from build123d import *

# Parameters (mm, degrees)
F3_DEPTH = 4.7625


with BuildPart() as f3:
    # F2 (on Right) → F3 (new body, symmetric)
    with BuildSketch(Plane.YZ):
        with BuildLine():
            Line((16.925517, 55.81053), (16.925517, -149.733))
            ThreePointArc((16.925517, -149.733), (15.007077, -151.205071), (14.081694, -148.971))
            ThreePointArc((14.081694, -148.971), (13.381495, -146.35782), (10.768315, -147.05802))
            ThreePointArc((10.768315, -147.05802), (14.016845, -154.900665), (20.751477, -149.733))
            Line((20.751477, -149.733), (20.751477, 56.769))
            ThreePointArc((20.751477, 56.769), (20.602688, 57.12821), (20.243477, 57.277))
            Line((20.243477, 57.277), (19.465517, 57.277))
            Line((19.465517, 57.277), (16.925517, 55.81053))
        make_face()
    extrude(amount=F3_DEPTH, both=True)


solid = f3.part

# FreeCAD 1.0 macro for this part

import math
import FreeCAD as App
import Part
import Sketcher
from FreeCAD import Vector
Q = App.Units.Quantity

doc = App.newDocument("Part")
body = doc.addObject("PartDesign::Body", "Body")

# Sketch on YZ plane
sketch1 = doc.addObject("Sketcher::SketchObject", "Sketch")
body.addObject(sketch1)
sketch1.AttachmentSupport = (doc.YZ_Plane, [""])
sketch1.MapMode = "FlatFace"
sketch1.addGeometry([
    Part.LineSegment(Vector(16.925517, 55.81053, 0), Vector(16.925517, -149.733, 0)),  # 0
    Part.ArcOfCircle(Part.Circle(Vector(15.401517, -149.733, 0), Vector(0, 0, 1), 1.524), math.radians(150.000008), math.radians(359.999995)),  # 1
    Part.ArcOfCircle(Part.Circle(Vector(12.425005, -148.014509, 0), Vector(0, 0, 1), 1.91298), math.radians(-30.000017), math.radians(150.000024)),  # 2
    Part.ArcOfCircle(Part.Circle(Vector(15.401517, -149.733, 0), Vector(0, 0, 1), 5.34996), math.radians(150.000001), math.radians(360.000001)),  # 3
    Part.LineSegment(Vector(20.751477, -149.733, 0), Vector(20.751477, 56.769, 0)),  # 4
    Part.ArcOfCircle(Part.Circle(Vector(20.243478, 56.769001, 0), Vector(0, 0, 1), 0.507999), math.radians(-0.000098), math.radians(90.000098)),  # 5
    Part.LineSegment(Vector(20.243477, 57.277, 0), Vector(19.465517, 57.277, 0)),  # 6
    Part.LineSegment(Vector(19.465517, 57.277, 0), Vector(16.925517, 55.81053, 0)),  # 7
], False)
sketch1.addConstraint([
    Sketcher.Constraint("Tangent", 0, 2, 1, 2),
    Sketcher.Constraint("Tangent", 1, 1, 2, 1),
    Sketcher.Constraint("Tangent", 2, 2, 3, 1),
    Sketcher.Constraint("Tangent", 3, 2, 4, 1),
    Sketcher.Constraint("Tangent", 4, 2, 5, 1),
    Sketcher.Constraint("Tangent", 5, 2, 6, 1),
    Sketcher.Constraint("Coincident", 6, 2, 7, 1),
    Sketcher.Constraint("Coincident", 7, 2, 0, 1),
    Sketcher.Constraint("Vertical", 0),
    Sketcher.Constraint("Vertical", 4),
    Sketcher.Constraint("Horizontal", 6),
    Sketcher.Constraint("Coincident", 3, 3, 1, 3),
    Sketcher.Constraint("Radius", 1, Q("0.06 in")),
    Sketcher.Constraint("Radius", 5, Q("0.02 in")),
    Sketcher.Constraint("Angle", 7, Q("-149.999995 deg")),
    Sketcher.Constraint("DistanceY", 4, 1, 4, 2, Q("8.13 in")),
    Sketcher.Constraint("DistanceY", 1, 1, 5, 3, Q("8.1 in")),
    Sketcher.Constraint("DistanceX", 7, 2, 6, 2, Q("0.1 in")),
    Sketcher.Constraint("DistanceY", 1, 3, -1, 1, Q("5.895 in")),
    Sketcher.Constraint("Radius", 2, 1.91298),
    Sketcher.Constraint("DistanceX", -1, 1, 1, 3, 15.401517),
])
pad1 = doc.addObject("PartDesign::Pad", "Pad")
body.addObject(pad1)
pad1.Profile = sketch1
pad1.Length = Q("0.375 in")
pad1.Midplane = True

doc.recompute()
